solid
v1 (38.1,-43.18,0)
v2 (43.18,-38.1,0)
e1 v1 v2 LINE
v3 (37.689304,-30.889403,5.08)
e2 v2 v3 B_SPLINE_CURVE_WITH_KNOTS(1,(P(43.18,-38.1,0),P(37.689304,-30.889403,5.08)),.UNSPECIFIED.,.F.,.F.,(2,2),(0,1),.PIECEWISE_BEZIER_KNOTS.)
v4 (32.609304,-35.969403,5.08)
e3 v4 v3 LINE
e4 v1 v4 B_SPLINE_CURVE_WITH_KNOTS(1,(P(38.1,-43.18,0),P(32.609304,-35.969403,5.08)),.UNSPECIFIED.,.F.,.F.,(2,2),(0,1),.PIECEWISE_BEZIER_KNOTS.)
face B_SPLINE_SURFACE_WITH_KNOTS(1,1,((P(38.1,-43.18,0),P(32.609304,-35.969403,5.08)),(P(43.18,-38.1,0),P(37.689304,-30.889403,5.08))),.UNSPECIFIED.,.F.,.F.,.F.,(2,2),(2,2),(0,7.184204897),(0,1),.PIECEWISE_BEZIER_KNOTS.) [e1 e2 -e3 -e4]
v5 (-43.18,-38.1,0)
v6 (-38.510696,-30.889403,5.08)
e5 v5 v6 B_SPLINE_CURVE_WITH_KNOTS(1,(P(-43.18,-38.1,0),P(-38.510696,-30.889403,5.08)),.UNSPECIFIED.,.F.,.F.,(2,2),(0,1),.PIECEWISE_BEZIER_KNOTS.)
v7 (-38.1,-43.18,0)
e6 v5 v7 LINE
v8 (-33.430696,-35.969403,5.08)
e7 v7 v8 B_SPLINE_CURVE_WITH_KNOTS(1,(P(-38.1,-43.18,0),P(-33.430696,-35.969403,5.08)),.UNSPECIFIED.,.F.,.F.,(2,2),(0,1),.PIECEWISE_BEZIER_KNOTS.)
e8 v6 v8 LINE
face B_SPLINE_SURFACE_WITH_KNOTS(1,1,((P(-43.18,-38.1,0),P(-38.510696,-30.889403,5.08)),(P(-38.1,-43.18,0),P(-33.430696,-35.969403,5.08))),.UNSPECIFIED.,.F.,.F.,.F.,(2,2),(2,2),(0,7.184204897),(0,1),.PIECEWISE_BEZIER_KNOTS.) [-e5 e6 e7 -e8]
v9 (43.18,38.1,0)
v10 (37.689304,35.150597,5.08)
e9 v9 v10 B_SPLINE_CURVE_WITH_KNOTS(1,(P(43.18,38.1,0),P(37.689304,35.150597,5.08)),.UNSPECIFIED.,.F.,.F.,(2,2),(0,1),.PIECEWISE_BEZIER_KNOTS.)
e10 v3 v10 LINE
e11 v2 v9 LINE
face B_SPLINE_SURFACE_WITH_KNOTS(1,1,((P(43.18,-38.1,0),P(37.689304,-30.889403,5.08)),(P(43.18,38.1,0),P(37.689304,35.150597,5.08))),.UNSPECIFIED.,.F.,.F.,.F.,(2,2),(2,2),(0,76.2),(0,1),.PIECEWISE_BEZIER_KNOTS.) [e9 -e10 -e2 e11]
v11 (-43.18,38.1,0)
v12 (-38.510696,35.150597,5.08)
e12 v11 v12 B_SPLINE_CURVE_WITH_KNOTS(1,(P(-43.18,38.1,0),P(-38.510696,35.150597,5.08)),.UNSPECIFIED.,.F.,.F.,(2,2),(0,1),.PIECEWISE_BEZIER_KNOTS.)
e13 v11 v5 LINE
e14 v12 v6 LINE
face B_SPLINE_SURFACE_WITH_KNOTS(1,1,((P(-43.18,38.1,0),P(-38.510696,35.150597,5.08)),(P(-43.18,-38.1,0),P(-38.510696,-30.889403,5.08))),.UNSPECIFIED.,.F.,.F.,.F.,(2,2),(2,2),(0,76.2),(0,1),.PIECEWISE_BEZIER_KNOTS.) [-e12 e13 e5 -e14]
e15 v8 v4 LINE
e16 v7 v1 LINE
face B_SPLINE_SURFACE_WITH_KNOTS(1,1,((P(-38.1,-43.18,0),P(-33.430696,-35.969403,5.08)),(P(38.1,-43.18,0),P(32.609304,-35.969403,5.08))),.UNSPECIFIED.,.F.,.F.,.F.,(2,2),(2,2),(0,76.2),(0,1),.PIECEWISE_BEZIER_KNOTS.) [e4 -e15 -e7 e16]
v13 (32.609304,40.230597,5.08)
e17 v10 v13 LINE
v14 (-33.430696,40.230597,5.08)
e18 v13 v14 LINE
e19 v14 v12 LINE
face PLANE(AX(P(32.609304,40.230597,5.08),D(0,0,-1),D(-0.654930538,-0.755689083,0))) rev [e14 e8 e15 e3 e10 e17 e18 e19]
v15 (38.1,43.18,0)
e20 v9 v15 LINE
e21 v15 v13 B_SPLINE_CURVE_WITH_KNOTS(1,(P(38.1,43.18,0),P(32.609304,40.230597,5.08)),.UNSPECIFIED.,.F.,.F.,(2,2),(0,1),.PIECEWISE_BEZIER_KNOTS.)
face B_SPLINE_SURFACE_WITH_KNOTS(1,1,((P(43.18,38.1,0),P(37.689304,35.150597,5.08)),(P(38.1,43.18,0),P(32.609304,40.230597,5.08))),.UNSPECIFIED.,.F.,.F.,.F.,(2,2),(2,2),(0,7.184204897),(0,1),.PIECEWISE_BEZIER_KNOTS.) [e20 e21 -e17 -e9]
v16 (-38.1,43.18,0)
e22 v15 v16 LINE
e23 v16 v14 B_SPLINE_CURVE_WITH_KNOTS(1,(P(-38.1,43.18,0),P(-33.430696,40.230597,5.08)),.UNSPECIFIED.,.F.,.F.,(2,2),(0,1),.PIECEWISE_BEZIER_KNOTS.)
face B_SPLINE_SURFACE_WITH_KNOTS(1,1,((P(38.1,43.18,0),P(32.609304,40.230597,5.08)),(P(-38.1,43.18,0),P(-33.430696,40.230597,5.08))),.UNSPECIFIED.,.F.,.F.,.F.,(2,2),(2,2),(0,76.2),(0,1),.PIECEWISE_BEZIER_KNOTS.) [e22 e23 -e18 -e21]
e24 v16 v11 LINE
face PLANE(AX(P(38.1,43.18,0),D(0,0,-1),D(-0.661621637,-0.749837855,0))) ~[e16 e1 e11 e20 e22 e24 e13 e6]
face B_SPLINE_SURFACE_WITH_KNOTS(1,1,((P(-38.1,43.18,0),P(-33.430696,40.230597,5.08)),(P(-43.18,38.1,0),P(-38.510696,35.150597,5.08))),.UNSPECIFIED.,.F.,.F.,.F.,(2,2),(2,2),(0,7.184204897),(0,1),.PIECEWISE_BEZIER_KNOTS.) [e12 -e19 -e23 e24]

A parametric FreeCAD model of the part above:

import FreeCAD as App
import Part
import Sketcher
Q = App.Units.Quantity


def add_polygon(sketch, points):
    """Adds a closed chain of lines whose ends are joined by coincident constraints."""
    first, n = sketch.GeometryCount, len(points)
    for a, b in zip(points, points[1:] + points[:1]):
        sketch.addGeometry(Part.LineSegment(App.Vector(*a, 0), App.Vector(*b, 0)), False)
    for i in range(n):
        sketch.addConstraint(Sketcher.Constraint("Coincident", first + i, 2, first + (i + 1) % n, 1))

doc = App.newDocument("Part")
body = doc.addObject("PartDesign::Body", "Body")

# Sketch on XY plane
sketch1 = body.newObject("Sketcher::SketchObject", "Sketch")
sketch1.AttachmentSupport = (doc.getObject("XY_Plane"), [""])
sketch1.MapMode = "FlatFace"
add_polygon(sketch1, [(38, 43), (-38, 43), (-43, 38), (-43, -38), (-38, -43), (38, -43), (43, -38), (43, 38)])  # lines 0-7
sketch1.addConstraint([
    Sketcher.Constraint("Horizontal", 0),
    Sketcher.Constraint("Vertical", 2),
    Sketcher.Constraint("Horizontal", 4),
    Sketcher.Constraint("Vertical", 6),
    Sketcher.Constraint("Symmetric", 0, 2, 4, 2, -1, 1),
    Sketcher.Constraint("Symmetric", 1, 2, 5, 2, -1, 1),
    Sketcher.Constraint("Perpendicular", 1, 3),
    Sketcher.Constraint("Perpendicular", 5, 7),
    Sketcher.Constraint("Horizontal", 2, 2, 5, 2),
    Sketcher.Constraint("Horizontal", 1, 2, 6, 2),
    Sketcher.Constraint("Vertical", 0, 2, 3, 2),
    Sketcher.Constraint("Equal", 4, 2),
    Sketcher.Constraint("DistanceX", 0, 2, 0, 1, Q("3 in")),
    Sketcher.Constraint("DistanceY", -1, 1, 0, 2, Q("1.7 in")),
])

# Sketch on XY plane
sketch2 = body.newObject("Sketcher::SketchObject", "Sketch001")
sketch2.AttachmentSupport = (doc.getObject("XY_Plane"), [""])
sketch2.MapMode = "FlatFace"
sketch2.AttachmentOffset = App.Placement(App.Vector(0, 0, 0.2 * 25.4), App.Rotation())
add_polygon(sketch2, [(-33, 40), (-39, 35), (-39, -31), (-33, -36), (33, -36), (38, -31), (38, 35), (33, 40)])  # lines 0-7
sketch2.addConstraint([
    Sketcher.Constraint("Vertical", 1),
    Sketcher.Constraint("Horizontal", 3),
    Sketcher.Constraint("Vertical", 5),
    Sketcher.Constraint("Horizontal", 7),
    Sketcher.Constraint("Perpendicular", 0, 2),
    Sketcher.Constraint("Perpendicular", 2, 4),
    Sketcher.Constraint("Perpendicular", 4, 6),
    Sketcher.Constraint("Horizontal", 1, 2, 4, 2),
    Sketcher.Constraint("Horizontal", 0, 2, 5, 2),
    Sketcher.Constraint("Vertical", 3, 2, 6, 2),
    Sketcher.Constraint("Vertical", 2, 2, 7, 2),
    Sketcher.Constraint("Equal", 7, 1),
    Sketcher.Constraint("DistanceX", 3, 1, 3, 2, Q("2.6 in")),
    Sketcher.Constraint("DistanceX", 1, 2, 4, 2, Q("3 in")),
    Sketcher.Constraint("DistanceX", 0, 2, -1, 1, Q("38.510696 mm")),
    Sketcher.Constraint("DistanceY", -1, 1, 0, 2, Q("35.150597 mm")),
])

additiveloft = body.newObject("PartDesign::AdditiveLoft", "AdditiveLoft")
additiveloft.Profile = sketch1
additiveloft.Sections = [sketch2]

doc.recompute()
